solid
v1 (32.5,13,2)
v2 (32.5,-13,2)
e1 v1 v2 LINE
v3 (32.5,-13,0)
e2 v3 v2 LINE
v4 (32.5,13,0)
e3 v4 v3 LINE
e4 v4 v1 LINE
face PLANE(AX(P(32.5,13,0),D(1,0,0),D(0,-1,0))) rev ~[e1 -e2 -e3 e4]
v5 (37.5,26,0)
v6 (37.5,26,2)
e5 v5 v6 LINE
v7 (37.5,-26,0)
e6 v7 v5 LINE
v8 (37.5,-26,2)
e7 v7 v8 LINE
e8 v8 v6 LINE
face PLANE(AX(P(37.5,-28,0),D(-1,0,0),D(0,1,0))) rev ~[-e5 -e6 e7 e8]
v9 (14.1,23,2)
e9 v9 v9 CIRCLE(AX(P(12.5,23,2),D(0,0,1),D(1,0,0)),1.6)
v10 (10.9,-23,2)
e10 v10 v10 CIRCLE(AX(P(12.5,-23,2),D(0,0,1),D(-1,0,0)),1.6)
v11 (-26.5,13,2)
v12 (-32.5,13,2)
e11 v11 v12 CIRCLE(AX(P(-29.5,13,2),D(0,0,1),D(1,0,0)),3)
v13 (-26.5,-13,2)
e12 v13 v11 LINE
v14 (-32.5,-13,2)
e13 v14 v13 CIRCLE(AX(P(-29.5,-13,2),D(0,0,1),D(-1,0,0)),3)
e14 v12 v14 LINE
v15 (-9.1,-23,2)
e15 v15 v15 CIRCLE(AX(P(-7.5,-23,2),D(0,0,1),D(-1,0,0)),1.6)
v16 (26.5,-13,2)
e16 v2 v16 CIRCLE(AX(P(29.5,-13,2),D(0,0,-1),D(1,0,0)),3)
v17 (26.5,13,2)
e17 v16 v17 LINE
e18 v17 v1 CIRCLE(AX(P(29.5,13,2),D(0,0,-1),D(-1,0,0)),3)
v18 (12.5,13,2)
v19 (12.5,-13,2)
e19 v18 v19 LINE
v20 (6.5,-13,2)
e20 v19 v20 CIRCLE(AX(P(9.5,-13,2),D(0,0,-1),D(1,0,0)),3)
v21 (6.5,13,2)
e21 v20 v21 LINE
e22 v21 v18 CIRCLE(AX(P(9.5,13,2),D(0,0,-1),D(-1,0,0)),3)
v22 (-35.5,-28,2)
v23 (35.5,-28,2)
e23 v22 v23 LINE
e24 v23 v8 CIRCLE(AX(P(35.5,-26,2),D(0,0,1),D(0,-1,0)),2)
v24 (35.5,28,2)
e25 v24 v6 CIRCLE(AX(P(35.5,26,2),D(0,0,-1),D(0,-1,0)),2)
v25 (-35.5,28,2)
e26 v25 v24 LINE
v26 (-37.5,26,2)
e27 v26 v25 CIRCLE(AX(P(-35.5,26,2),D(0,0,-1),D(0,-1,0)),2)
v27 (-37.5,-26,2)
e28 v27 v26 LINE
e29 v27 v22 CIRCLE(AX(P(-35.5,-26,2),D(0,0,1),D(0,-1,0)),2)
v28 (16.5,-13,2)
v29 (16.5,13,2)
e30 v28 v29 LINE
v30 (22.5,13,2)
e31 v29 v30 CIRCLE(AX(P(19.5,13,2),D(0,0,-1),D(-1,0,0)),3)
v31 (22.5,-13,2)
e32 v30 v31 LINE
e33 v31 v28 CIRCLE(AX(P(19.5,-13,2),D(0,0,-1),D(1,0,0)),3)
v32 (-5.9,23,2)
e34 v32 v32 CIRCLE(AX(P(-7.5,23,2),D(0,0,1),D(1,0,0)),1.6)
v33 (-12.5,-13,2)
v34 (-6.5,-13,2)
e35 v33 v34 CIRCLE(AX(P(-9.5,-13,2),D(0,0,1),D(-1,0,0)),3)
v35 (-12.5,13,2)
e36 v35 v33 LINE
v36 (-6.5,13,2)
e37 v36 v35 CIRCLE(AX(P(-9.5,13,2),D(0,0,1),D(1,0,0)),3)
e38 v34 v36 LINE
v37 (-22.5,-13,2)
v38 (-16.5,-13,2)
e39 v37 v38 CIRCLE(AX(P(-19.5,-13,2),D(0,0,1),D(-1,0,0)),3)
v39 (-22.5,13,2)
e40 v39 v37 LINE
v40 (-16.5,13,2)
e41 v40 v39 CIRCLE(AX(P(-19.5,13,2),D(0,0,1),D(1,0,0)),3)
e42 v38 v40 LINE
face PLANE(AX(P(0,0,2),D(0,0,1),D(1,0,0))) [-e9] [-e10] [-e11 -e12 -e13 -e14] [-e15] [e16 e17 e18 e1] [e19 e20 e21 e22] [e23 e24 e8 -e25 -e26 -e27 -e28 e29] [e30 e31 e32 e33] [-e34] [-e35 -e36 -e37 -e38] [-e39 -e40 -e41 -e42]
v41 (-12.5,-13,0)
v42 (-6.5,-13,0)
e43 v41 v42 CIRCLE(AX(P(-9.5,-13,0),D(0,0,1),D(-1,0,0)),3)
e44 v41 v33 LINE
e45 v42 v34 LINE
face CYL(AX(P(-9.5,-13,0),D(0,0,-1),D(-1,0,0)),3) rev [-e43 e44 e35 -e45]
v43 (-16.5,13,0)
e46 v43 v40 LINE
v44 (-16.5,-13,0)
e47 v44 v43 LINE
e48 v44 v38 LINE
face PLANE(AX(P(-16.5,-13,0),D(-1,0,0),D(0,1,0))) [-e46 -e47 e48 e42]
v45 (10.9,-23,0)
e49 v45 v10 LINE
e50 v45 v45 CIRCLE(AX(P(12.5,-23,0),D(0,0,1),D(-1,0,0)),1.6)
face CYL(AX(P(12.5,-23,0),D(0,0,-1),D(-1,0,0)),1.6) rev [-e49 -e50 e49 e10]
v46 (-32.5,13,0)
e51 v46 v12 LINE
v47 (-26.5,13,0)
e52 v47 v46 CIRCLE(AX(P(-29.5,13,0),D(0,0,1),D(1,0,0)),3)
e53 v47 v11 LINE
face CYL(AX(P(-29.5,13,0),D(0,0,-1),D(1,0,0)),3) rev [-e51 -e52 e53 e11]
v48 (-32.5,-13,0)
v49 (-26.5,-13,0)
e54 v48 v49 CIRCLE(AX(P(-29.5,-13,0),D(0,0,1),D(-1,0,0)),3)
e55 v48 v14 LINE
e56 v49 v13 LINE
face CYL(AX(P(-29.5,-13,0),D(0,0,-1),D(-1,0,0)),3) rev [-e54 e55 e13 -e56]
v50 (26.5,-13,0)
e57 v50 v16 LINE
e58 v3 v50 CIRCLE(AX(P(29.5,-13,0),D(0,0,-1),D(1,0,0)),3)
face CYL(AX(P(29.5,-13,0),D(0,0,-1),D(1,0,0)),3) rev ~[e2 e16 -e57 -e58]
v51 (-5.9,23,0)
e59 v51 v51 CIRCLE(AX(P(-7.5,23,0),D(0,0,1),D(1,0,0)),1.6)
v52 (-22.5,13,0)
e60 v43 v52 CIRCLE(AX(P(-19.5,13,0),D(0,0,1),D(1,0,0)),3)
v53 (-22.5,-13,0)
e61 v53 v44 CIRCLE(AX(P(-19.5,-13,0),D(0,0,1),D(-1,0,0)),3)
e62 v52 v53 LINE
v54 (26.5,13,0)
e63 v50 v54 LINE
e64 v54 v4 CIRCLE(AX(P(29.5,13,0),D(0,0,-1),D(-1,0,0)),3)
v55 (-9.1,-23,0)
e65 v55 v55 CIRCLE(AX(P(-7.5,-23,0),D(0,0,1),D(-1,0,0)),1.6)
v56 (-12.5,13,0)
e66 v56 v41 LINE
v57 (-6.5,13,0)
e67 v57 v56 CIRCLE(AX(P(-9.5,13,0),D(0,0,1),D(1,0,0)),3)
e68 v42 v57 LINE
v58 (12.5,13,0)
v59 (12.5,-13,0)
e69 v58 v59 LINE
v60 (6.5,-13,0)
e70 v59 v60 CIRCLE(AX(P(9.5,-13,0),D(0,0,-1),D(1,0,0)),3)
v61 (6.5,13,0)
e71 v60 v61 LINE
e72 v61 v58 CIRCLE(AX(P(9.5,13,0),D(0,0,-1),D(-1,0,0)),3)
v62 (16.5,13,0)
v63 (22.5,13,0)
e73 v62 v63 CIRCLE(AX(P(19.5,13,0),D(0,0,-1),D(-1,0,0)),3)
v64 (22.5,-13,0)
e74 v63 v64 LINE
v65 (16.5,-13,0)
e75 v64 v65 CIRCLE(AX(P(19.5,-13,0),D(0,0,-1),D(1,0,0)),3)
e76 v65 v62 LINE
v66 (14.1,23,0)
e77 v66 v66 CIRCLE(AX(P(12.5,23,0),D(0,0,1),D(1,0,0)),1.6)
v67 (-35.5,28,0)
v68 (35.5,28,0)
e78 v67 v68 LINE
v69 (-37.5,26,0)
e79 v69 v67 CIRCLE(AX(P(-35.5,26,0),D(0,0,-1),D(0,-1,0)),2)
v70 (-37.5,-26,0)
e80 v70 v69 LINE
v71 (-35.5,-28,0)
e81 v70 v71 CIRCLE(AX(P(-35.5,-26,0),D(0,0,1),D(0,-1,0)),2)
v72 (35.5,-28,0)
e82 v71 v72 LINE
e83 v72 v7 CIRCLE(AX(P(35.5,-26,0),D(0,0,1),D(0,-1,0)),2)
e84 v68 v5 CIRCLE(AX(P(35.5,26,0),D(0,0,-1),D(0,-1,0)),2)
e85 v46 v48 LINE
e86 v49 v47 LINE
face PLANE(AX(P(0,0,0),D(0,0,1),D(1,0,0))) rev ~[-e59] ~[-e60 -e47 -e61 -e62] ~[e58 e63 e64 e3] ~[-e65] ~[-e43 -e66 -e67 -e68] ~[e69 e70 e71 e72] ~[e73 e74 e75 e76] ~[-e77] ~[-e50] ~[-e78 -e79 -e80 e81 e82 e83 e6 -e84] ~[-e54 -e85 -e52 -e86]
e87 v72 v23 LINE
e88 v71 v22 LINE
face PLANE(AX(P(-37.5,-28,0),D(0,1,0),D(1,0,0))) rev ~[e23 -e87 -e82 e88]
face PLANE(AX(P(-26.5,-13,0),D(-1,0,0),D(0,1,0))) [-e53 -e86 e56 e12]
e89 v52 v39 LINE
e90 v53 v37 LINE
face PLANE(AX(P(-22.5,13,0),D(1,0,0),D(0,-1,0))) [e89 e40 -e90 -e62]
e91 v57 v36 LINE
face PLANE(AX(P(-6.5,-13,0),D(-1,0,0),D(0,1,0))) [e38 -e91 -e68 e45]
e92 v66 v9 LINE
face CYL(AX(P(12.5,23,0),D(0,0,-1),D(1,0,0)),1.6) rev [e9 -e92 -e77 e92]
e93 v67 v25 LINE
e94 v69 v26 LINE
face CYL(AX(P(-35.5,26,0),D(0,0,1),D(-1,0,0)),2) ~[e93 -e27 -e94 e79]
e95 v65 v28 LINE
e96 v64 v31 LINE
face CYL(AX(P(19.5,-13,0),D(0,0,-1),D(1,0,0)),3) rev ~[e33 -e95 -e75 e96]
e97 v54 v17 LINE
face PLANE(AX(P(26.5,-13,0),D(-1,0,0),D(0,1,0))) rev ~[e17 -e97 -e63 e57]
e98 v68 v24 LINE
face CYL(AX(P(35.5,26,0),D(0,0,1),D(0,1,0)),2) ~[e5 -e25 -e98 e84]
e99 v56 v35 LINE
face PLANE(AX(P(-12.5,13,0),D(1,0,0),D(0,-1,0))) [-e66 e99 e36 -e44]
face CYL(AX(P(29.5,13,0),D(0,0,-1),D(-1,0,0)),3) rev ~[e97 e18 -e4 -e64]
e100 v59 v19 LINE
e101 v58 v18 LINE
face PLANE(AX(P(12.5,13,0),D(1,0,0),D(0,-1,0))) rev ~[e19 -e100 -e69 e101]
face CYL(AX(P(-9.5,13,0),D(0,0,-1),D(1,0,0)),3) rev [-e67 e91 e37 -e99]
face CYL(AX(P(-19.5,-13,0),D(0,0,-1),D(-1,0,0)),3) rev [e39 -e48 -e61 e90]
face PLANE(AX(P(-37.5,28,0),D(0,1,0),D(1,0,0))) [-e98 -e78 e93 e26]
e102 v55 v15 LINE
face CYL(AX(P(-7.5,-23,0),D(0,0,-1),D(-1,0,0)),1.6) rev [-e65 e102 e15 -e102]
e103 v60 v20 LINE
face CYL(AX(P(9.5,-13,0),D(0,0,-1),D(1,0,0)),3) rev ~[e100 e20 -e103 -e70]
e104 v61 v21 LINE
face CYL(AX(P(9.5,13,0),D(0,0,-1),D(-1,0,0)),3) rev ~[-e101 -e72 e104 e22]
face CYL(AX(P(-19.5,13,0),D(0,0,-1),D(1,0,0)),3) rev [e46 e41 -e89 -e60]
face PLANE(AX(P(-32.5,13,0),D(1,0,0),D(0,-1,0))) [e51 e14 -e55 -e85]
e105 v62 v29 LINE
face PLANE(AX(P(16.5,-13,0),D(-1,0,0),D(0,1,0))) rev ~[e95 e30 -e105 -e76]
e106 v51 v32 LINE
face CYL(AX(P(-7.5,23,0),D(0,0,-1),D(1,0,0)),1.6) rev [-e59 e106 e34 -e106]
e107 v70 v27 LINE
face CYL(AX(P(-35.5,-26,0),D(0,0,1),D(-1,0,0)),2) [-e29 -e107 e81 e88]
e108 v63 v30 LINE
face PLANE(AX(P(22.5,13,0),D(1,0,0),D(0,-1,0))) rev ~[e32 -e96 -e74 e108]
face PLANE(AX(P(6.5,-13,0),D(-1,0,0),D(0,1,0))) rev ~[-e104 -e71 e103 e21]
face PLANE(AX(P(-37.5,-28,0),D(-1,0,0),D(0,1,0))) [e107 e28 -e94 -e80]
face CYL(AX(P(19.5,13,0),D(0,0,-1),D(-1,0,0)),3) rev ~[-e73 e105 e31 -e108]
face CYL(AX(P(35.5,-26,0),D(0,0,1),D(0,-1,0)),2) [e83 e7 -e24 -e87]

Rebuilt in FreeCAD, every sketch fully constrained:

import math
import FreeCAD as App
import Part
import Sketcher

V = App.Vector


def edges_at(feature, points):
    """Names of the edges that pass closest to the given points."""
    edges = feature.Shape.Edges
    near = lambda p: min(range(len(edges)), key=lambda i: edges[i].distToShape(Part.Vertex(*p))[0])
    return sorted({f"Edge{near(p) + 1}" for p in points})

doc = App.newDocument("Part")
body = doc.addObject("PartDesign::Body", "Body")

sketch1 = doc.addObject("Sketcher::SketchObject", "Sketch")
body.addObject(sketch1)
sketch1.AttachmentSupport = (doc.XY_Plane, [""])
sketch1.MapMode = "FlatFace"
sketch1.addGeometry(Part.LineSegment(V(-37.5, 28, 0), V(-37.5, -28, 0)), False)
sketch1.addGeometry(Part.LineSegment(V(-37.5, -28, 0), V(37.5, -28, 0)), False)
sketch1.addGeometry(Part.LineSegment(V(37.5, -28, 0), V(37.5, 28, 0)), False)
sketch1.addGeometry(Part.LineSegment(V(37.5, 28, 0), V(-37.5, 28, 0)), False)
sketch1.addGeometry(Part.Circle(V(-7.5, -23, 0), V(0, 0, 1), 1.6), False)
sketch1.addGeometry(Part.Circle(V(12.5, -23, 0), V(0, 0, 1), 1.6), False)
sketch1.addGeometry(Part.LineSegment(V(-32.5, -13, 0), V(-32.5, 13, 0)), False)
sketch1.addGeometry(Part.ArcOfCircle(Part.Circle(V(-29.5, 13, 0), V(0, 0, 1), 3), math.radians(0), math.radians(180)), False)
sketch1.addGeometry(Part.LineSegment(V(-26.5, 13, 0), V(-26.5, -13, 0)), False)
sketch1.addGeometry(Part.ArcOfCircle(Part.Circle(V(-29.5, -13, 0), V(0, 0, 1), 3), math.radians(180), math.radians(360)), False)
sketch1.addGeometry(Part.LineSegment(V(-22.5, -13, 0), V(-22.5, 13, 0)), False)
sketch1.addGeometry(Part.ArcOfCircle(Part.Circle(V(-19.5, 13, 0), V(0, 0, 1), 3), math.radians(0), math.radians(180)), False)
sketch1.addGeometry(Part.LineSegment(V(-16.5, 13, 0), V(-16.5, -13, 0)), False)
sketch1.addGeometry(Part.ArcOfCircle(Part.Circle(V(-19.5, -13, 0), V(0, 0, 1), 3), math.radians(180), math.radians(360)), False)
sketch1.addGeometry(Part.LineSegment(V(-12.5, -13, 0), V(-12.5, 13, 0)), False)
sketch1.addGeometry(Part.ArcOfCircle(Part.Circle(V(-9.5, 13, 0), V(0, 0, 1), 3), math.radians(0), math.radians(180)), False)
sketch1.addGeometry(Part.LineSegment(V(-6.5, 13, 0), V(-6.5, -13, 0)), False)
sketch1.addGeometry(Part.ArcOfCircle(Part.Circle(V(-9.5, -13, 0), V(0, 0, 1), 3), math.radians(180), math.radians(360)), False)
sketch1.addGeometry(Part.Circle(V(-7.5, 23, 0), V(0, 0, 1), 1.6), False)
sketch1.addGeometry(Part.ArcOfCircle(Part.Circle(V(9.5, 13, 0), V(0, 0, 1), 3), math.radians(0), math.radians(180)), False)
sketch1.addGeometry(Part.LineSegment(V(12.5, 13, 0), V(12.5, -13, 0)), False)
sketch1.addGeometry(Part.ArcOfCircle(Part.Circle(V(9.5, -13, 0), V(0, 0, 1), 3), math.radians(180), math.radians(360)), False)
sketch1.addGeometry(Part.LineSegment(V(6.5, -13, 0), V(6.5, 13, 0)), False)
sketch1.addGeometry(Part.ArcOfCircle(Part.Circle(V(19.5, 13, 0), V(0, 0, 1), 3), math.radians(0), math.radians(180)), False)
sketch1.addGeometry(Part.LineSegment(V(22.5, 13, 0), V(22.5, -13, 0)), False)
sketch1.addGeometry(Part.ArcOfCircle(Part.Circle(V(19.5, -13, 0), V(0, 0, 1), 3), math.radians(180), math.radians(360)), False)
sketch1.addGeometry(Part.LineSegment(V(16.5, -13, 0), V(16.5, 13, 0)), False)
sketch1.addGeometry(Part.ArcOfCircle(Part.Circle(V(29.5, 13, 0), V(0, 0, 1), 3), math.radians(0), math.radians(180)), False)
sketch1.addGeometry(Part.LineSegment(V(32.5, 13, 0), V(32.5, -13, 0)), False)
sketch1.addGeometry(Part.ArcOfCircle(Part.Circle(V(29.5, -13, 0), V(0, 0, 1), 3), math.radians(180), math.radians(360)), False)
sketch1.addGeometry(Part.LineSegment(V(26.5, -13, 0), V(26.5, 13, 0)), False)
sketch1.addGeometry(Part.Circle(V(12.5, 23, 0), V(0, 0, 1), 1.6), False)
sketch1.addConstraint(Sketcher.Constraint("Coincident", 0, 2, 1, 1))
sketch1.addConstraint(Sketcher.Constraint("Coincident", 1, 2, 2, 1))
sketch1.addConstraint(Sketcher.Constraint("Coincident", 2, 2, 3, 1))
sketch1.addConstraint(Sketcher.Constraint("Coincident", 3, 2, 0, 1))
sketch1.addConstraint(Sketcher.Constraint("Tangent", 6, 2, 7, 2))
sketch1.addConstraint(Sketcher.Constraint("Tangent", 7, 1, 8, 1))
sketch1.addConstraint(Sketcher.Constraint("Tangent", 8, 2, 9, 2))
sketch1.addConstraint(Sketcher.Constraint("Tangent", 9, 1, 6, 1))
sketch1.addConstraint(Sketcher.Constraint("Tangent", 10, 2, 11, 2))
sketch1.addConstraint(Sketcher.Constraint("Tangent", 11, 1, 12, 1))
sketch1.addConstraint(Sketcher.Constraint("Tangent", 12, 2, 13, 2))
sketch1.addConstraint(Sketcher.Constraint("Tangent", 13, 1, 10, 1))
sketch1.addConstraint(Sketcher.Constraint("Tangent", 14, 2, 15, 2))
sketch1.addConstraint(Sketcher.Constraint("Tangent", 15, 1, 16, 1))
sketch1.addConstraint(Sketcher.Constraint("Tangent", 16, 2, 17, 2))
sketch1.addConstraint(Sketcher.Constraint("Tangent", 17, 1, 14, 1))
sketch1.addConstraint(Sketcher.Constraint("Tangent", 19, 1, 20, 1))
sketch1.addConstraint(Sketcher.Constraint("Tangent", 20, 2, 21, 2))
sketch1.addConstraint(Sketcher.Constraint("Tangent", 21, 1, 22, 1))
sketch1.addConstraint(Sketcher.Constraint("Tangent", 22, 2, 19, 2))
sketch1.addConstraint(Sketcher.Constraint("Tangent", 23, 1, 24, 1))
sketch1.addConstraint(Sketcher.Constraint("Tangent", 24, 2, 25, 2))
sketch1.addConstraint(Sketcher.Constraint("Tangent", 25, 1, 26, 1))
sketch1.addConstraint(Sketcher.Constraint("Tangent", 26, 2, 23, 2))
sketch1.addConstraint(Sketcher.Constraint("Tangent", 27, 1, 28, 1))
sketch1.addConstraint(Sketcher.Constraint("Tangent", 28, 2, 29, 2))
sketch1.addConstraint(Sketcher.Constraint("Tangent", 29, 1, 30, 1))
sketch1.addConstraint(Sketcher.Constraint("Tangent", 30, 2, 27, 2))
sketch1.addConstraint(Sketcher.Constraint("Vertical", 0))
sketch1.addConstraint(Sketcher.Constraint("Horizontal", 1))
sketch1.addConstraint(Sketcher.Constraint("Vertical", 2))
sketch1.addConstraint(Sketcher.Constraint("Horizontal", 3))
sketch1.addConstraint(Sketcher.Constraint("Vertical", 6))
sketch1.addConstraint(Sketcher.Constraint("Vertical", 8))
sketch1.addConstraint(Sketcher.Constraint("Vertical", 10))
sketch1.addConstraint(Sketcher.Constraint("Vertical", 12))
sketch1.addConstraint(Sketcher.Constraint("Vertical", 14))
sketch1.addConstraint(Sketcher.Constraint("Vertical", 16))
sketch1.addConstraint(Sketcher.Constraint("Vertical", 20))
sketch1.addConstraint(Sketcher.Constraint("Vertical", 22))
sketch1.addConstraint(Sketcher.Constraint("Vertical", 24))
sketch1.addConstraint(Sketcher.Constraint("Vertical", 26))
sketch1.addConstraint(Sketcher.Constraint("Vertical", 28))
sketch1.addConstraint(Sketcher.Constraint("Vertical", 30))
sketch1.addConstraint(Sketcher.Constraint("Equal", 4, 5))
sketch1.addConstraint(Sketcher.Constraint("Equal", 9, 11))
sketch1.addConstraint(Sketcher.Constraint("Equal", 13, 15))
sketch1.addConstraint(Sketcher.Constraint("Equal", 5, 18))
sketch1.addConstraint(Sketcher.Constraint("Equal", 17, 19))
sketch1.addConstraint(Sketcher.Constraint("Equal", 21, 23))
sketch1.addConstraint(Sketcher.Constraint("Equal", 25, 27))
sketch1.addConstraint(Sketcher.Constraint("Equal", 18, 31))
sketch1.addConstraint(Sketcher.Constraint("Symmetric", 17, 3, 19, 3, -1, 1))
sketch1.addConstraint(Sketcher.Constraint("Symmetric", 13, 3, 23, 3, -1, 1))
sketch1.addConstraint(Sketcher.Constraint("Symmetric", 9, 3, 27, 3, -1, 1))
sketch1.addConstraint(Sketcher.Constraint("Symmetric", 0, 2, 2, 2, -1, 1))
sketch1.addConstraint(Sketcher.Constraint("Symmetric", 4, 3, 18, 3, -1))
sketch1.addConstraint(Sketcher.Constraint("Symmetric", 5, 3, 31, 3, -1))
sketch1.addConstraint(Sketcher.Constraint("Horizontal", 4, 3, 5, 3))
sketch1.addConstraint(Sketcher.Constraint("Horizontal", 7, 3, 11, 3))
sketch1.addConstraint(Sketcher.Constraint("Horizontal", 9, 3, 13, 3))
sketch1.addConstraint(Sketcher.Constraint("Horizontal", 11, 3, 15, 3))
sketch1.addConstraint(Sketcher.Constraint("Horizontal", 13, 3, 17, 3))
sketch1.addConstraint(Sketcher.Constraint("Horizontal", 15, 3, 19, 3))
sketch1.addConstraint(Sketcher.Constraint("Horizontal", 17, 3, 21, 3))
sketch1.addConstraint(Sketcher.Constraint("Horizontal", 21, 3, 25, 3))
sketch1.addConstraint(Sketcher.Constraint("Horizontal", 25, 3, 29, 3))
sketch1.addConstraint(Sketcher.Constraint("Vertical", 31, 3, 19, 1))
sketch1.addConstraint(Sketcher.Constraint("Radius", 7, 3.0))
sketch1.addConstraint(Sketcher.Constraint("Diameter", 4, 3.2))
sketch1.addConstraint(Sketcher.Constraint("DistanceX", 1, 1, 1, 2, 75.0))
sketch1.addConstraint(Sketcher.Constraint("DistanceY", 0, 2, 0, 1, 56.0))
sketch1.addConstraint(Sketcher.Constraint("DistanceY", 6, 1, 6, 2, 26.0))
sketch1.addConstraint(Sketcher.Constraint("DistanceY", 4, 3, -1, 1, 23.0))
sketch1.addConstraint(Sketcher.Constraint("DistanceX", 4, 3, 5, 3, 20.0))
sketch1.addConstraint(Sketcher.Constraint("DistanceX", 7, 3, 4, 3, 22.0))
sketch1.addConstraint(Sketcher.Constraint("DistanceX", 7, 3, 11, 3, 10.0))
sketch1.addConstraint(Sketcher.Constraint("DistanceX", 11, 3, 15, 3, 10.0))
pad1 = doc.addObject("PartDesign::Pad", "Pad")
body.addObject(pad1)
pad1.Profile = sketch1
pad1.Length = 2
doc.recompute()

fillet = doc.addObject("PartDesign::Fillet", "Fillet")
body.addObject(fillet)
fillet.Base = (pad1, edges_at(pad1, [
    (-37.5, 28, 1),
    (37.5, 28, 1),
    (37.5, -28, 1),
    (-37.5, -28, 1),
]))
fillet.Radius = 2

doc.recompute()
